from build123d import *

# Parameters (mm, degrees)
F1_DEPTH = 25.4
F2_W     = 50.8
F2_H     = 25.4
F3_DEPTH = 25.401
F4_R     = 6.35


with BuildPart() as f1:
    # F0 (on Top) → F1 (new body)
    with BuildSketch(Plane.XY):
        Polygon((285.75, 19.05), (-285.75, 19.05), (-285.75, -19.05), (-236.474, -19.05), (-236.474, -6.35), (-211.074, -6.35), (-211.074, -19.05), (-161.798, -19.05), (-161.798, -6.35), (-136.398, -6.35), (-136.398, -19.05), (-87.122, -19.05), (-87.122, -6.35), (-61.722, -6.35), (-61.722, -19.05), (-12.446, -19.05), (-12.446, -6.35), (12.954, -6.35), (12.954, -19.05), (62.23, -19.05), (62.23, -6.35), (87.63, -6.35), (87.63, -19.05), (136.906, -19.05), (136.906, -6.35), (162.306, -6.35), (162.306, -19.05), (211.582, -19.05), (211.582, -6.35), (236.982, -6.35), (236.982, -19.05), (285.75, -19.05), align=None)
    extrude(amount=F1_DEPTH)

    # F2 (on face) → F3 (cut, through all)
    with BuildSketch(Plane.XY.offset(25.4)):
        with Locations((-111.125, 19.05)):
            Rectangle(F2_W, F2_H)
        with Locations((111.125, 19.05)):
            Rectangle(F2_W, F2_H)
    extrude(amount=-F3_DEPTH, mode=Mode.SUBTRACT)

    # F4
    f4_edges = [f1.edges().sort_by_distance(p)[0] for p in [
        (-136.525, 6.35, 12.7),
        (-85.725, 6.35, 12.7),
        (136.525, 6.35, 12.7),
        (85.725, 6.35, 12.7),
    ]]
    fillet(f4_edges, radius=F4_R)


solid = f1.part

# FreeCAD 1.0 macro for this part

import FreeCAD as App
import Part
import Sketcher

V = App.Vector
Q = App.Units.Quantity


def edges_at(feature, points):
    """Names of the edges that pass closest to the given points."""
    edges = feature.Shape.Edges
    near = lambda p: min(range(len(edges)), key=lambda i: edges[i].distToShape(Part.Vertex(*p))[0])
    return sorted({f"Edge{near(p) + 1}" for p in points})


def add_polygon(sketch, points):
    """Adds a closed chain of lines whose ends are joined by coincident constraints."""
    first, n = sketch.GeometryCount, len(points)
    for a, b in zip(points, points[1:] + points[:1]):
        sketch.addGeometry(Part.LineSegment(App.Vector(*a, 0), App.Vector(*b, 0)), False)
    for i in range(n):
        sketch.addConstraint(Sketcher.Constraint("Coincident", first + i, 2, first + (i + 1) % n, 1))

doc = App.newDocument("Part")
body = doc.addObject("PartDesign::Body", "Body")

# Sketch on XY plane
sketch1 = body.newObject("Sketcher::SketchObject", "Sketch")
sketch1.AttachmentSupport = (doc.getObject("XY_Plane"), [""])
sketch1.MapMode = "FlatFace"
add_polygon(sketch1, [(286, 19), (-286, 19), (-286, -19), (-236, -19), (-236, -6), (-211, -6), (-211, -19), (-162, -19), (-162, -6), (-136, -6), (-136, -19), (-87, -19), (-87, -6), (-62, -6), (-62, -19), (-12, -19), (-12, -6), (13, -6), (13, -19), (62, -19), (62, -6), (88, -6), (88, -19), (137, -19), (137, -6), (162, -6), (162, -19), (212, -19), (212, -6), (237, -6), (237, -19), (286, -19)])  # lines 0-31
sketch1.addConstraint([
    Sketcher.Constraint("Horizontal", 0),
    Sketcher.Constraint("Vertical", 1),
    Sketcher.Constraint("Horizontal", 2),
    Sketcher.Constraint("Vertical", 3),
    Sketcher.Constraint("Horizontal", 4),
    Sketcher.Constraint("Vertical", 5),
    Sketcher.Constraint("Horizontal", 6),
    Sketcher.Constraint("Vertical", 7),
    Sketcher.Constraint("Horizontal", 8),
    Sketcher.Constraint("Vertical", 9),
    Sketcher.Constraint("Horizontal", 10),
    Sketcher.Constraint("Vertical", 11),
    Sketcher.Constraint("Horizontal", 12),
    Sketcher.Constraint("Vertical", 13),
    Sketcher.Constraint("Horizontal", 14),
    Sketcher.Constraint("Vertical", 15),
    Sketcher.Constraint("Horizontal", 16),
    Sketcher.Constraint("Vertical", 17),
    Sketcher.Constraint("Horizontal", 18),
    Sketcher.Constraint("Vertical", 19),
    Sketcher.Constraint("Horizontal", 20),
    Sketcher.Constraint("Vertical", 21),
    Sketcher.Constraint("Horizontal", 22),
    Sketcher.Constraint("Vertical", 23),
    Sketcher.Constraint("Horizontal", 24),
    Sketcher.Constraint("Vertical", 25),
    Sketcher.Constraint("Horizontal", 26),
    Sketcher.Constraint("Vertical", 27),
    Sketcher.Constraint("Horizontal", 28),
    Sketcher.Constraint("Vertical", 29),
    Sketcher.Constraint("Horizontal", 30),
    Sketcher.Constraint("Vertical", 31),
    Sketcher.Constraint("Symmetric", 0, 2, 30, 2, -1, 1),
    Sketcher.Constraint("Horizontal", 2, 2, 5, 2),
    Sketcher.Constraint("Horizontal", 4, 2, 7, 2),
    Sketcher.Constraint("Horizontal", 6, 2, 9, 2),
    Sketcher.Constraint("Horizontal", 8, 2, 11, 2),
    Sketcher.Constraint("Horizontal", 10, 2, 13, 2),
    Sketcher.Constraint("Horizontal", 12, 2, 15, 2),
    Sketcher.Constraint("Horizontal", 14, 2, 17, 2),
    Sketcher.Constraint("Horizontal", 16, 2, 19, 2),
    Sketcher.Constraint("Horizontal", 18, 2, 21, 2),
    Sketcher.Constraint("Horizontal", 20, 2, 23, 2),
    Sketcher.Constraint("Horizontal", 22, 2, 25, 2),
    Sketcher.Constraint("Horizontal", 24, 2, 27, 2),
    Sketcher.Constraint("Horizontal", 26, 2, 29, 2),
    Sketcher.Constraint("Equal", 2, 6),
    Sketcher.Constraint("Equal", 4, 8),
    Sketcher.Constraint("Equal", 6, 10),
    Sketcher.Constraint("Equal", 8, 12),
    Sketcher.Constraint("Equal", 10, 14),
    Sketcher.Constraint("Equal", 12, 16),
    Sketcher.Constraint("Equal", 14, 18),
    Sketcher.Constraint("Equal", 16, 20),
    Sketcher.Constraint("Equal", 18, 22),
    Sketcher.Constraint("Equal", 20, 24),
    Sketcher.Constraint("Equal", 22, 26),
    Sketcher.Constraint("Equal", 24, 28),
    Sketcher.Constraint("DistanceX", 4, 1, 4, 2, Q("1 in")),
    Sketcher.Constraint("DistanceX", 0, 2, 0, 1, Q("22.5 in")),
    Sketcher.Constraint("DistanceY", 1, 2, 1, 1, Q("1.5 in")),
    Sketcher.Constraint("DistanceY", 3, 1, 3, 2, Q("0.5 in")),
    Sketcher.Constraint("DistanceX", 2, 1, 2, 2, Q("1.94 in")),
])
pad1 = body.newObject("PartDesign::Pad", "Pad")
pad1.Profile = sketch1
pad1.Length = Q("1 in")

# Sketch on XY plane
sketch2 = body.newObject("Sketcher::SketchObject", "Sketch001")
sketch2.AttachmentSupport = (doc.getObject("XY_Plane"), [""])
sketch2.MapMode = "FlatFace"
sketch2.AttachmentOffset = App.Placement(V(0, 0, 1 * 25.4), App.Rotation())
add_polygon(sketch2, [(-137, 32), (-137, 6), (-86, 6), (-86, 32)])  # lines 0-3
add_polygon(sketch2, [(86, 32), (86, 6), (137, 6), (137, 32)])  # lines 4-7
sketch2.addConstraint([
    Sketcher.Constraint("Vertical", 0),
    Sketcher.Constraint("Horizontal", 1),
    Sketcher.Constraint("Vertical", 2),
    Sketcher.Constraint("Horizontal", 3),
    Sketcher.Constraint("Vertical", 4),
    Sketcher.Constraint("Horizontal", 5),
    Sketcher.Constraint("Vertical", 6),
    Sketcher.Constraint("Horizontal", 7),
    Sketcher.Constraint("Symmetric", 1, 2, 4, 2, -2),
    Sketcher.Constraint("Symmetric", 3, 2, 6, 2, -2),
    Sketcher.Constraint("DistanceX", 1, 1, 1, 2, Q("2 in")),
    Sketcher.Constraint("DistanceY", 0, 2, 0, 1, Q("1 in")),
    Sketcher.Constraint("DistanceY", -1, 1, 0, 2, Q("0.25 in")),
    Sketcher.Constraint("DistanceX", 1, 2, 4, 2, Q("6.75 in")),
])
pocket1 = body.newObject("PartDesign::Pocket", "Pocket")
pocket1.Profile = sketch2
pocket1.Type = "ThroughAll"
doc.recompute()

fillet = body.newObject("PartDesign::Fillet", "Fillet")
fillet.Base = (pocket1, edges_at(pocket1, [
    (-136.525, 6.35, 12.7),
    (-85.725, 6.35, 12.7),
    (136.525, 6.35, 12.7),
    (85.725, 6.35, 12.7),
]))
fillet.Radius = Q("0.25 in")

doc.recompute()
